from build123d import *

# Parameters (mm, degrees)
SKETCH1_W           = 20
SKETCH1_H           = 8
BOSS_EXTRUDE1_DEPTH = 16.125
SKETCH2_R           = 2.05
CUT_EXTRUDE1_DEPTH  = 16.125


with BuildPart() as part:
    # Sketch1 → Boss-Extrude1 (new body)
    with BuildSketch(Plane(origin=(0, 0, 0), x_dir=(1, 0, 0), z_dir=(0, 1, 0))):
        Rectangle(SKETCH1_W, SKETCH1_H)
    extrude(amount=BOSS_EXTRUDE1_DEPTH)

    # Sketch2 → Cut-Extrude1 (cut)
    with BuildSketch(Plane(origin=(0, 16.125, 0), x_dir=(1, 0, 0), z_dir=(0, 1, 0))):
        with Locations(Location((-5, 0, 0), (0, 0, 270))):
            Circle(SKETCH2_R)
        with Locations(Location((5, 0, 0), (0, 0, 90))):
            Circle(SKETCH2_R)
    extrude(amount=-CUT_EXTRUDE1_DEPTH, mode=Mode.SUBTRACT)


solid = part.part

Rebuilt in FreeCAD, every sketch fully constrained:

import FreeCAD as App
import Part
import Sketcher
from FreeCAD import Vector


def add_polygon(sketch, points):
    """Adds a closed chain of lines whose ends are joined by coincident constraints."""
    first, n = sketch.GeometryCount, len(points)
    for a, b in zip(points, points[1:] + points[:1]):
        sketch.addGeometry(Part.LineSegment(App.Vector(*a, 0), App.Vector(*b, 0)), False)
    for i in range(n):
        sketch.addConstraint(Sketcher.Constraint("Coincident", first + i, 2, first + (i + 1) % n, 1))

doc = App.newDocument("Part")
body = doc.addObject("PartDesign::Body", "Body")

# Sketch on XZ plane
sketch1 = doc.addObject("Sketcher::SketchObject", "Sketch")
body.addObject(sketch1)
sketch1.AttachmentSupport = (doc.XZ_Plane, [""])
sketch1.MapMode = "FlatFace"
add_polygon(sketch1, [(-10, -4), (-10, 4), (10, 4), (10, -4)])  # lines 0-3
sketch1.addConstraint(Sketcher.Constraint("Vertical", 0))
sketch1.addConstraint(Sketcher.Constraint("Horizontal", 1))
sketch1.addConstraint(Sketcher.Constraint("Vertical", 2))
sketch1.addConstraint(Sketcher.Constraint("Horizontal", 3))
sketch1.addConstraint(Sketcher.Constraint("Symmetric", 0, 2, 2, 2, -1, 1))
sketch1.addConstraint(Sketcher.Constraint("DistanceX", 1, 1, 1, 2, 20.0))
sketch1.addConstraint(Sketcher.Constraint("DistanceY", 0, 1, 0, 2, 8.0))
pad1 = doc.addObject("PartDesign::Pad", "Pad")
body.addObject(pad1)
pad1.Profile = sketch1
pad1.Length = 16.125
pad1.Reversed = True

# Sketch on XZ plane
sketch2 = doc.addObject("Sketcher::SketchObject", "Sketch001")
body.addObject(sketch2)
sketch2.AttachmentSupport = (doc.XZ_Plane, [""])
sketch2.MapMode = "FlatFace"
sketch2.AttachmentOffset = App.Placement(Vector(0, 0, -16.125), App.Rotation())
sketch2.addGeometry(Part.Circle(Vector(-5, 0, 0), Vector(0, 0, 1), 2), False)
sketch2.addGeometry(Part.Circle(Vector(5, 0, 0), Vector(0, 0, 1), 2), False)
sketch2.addConstraint(Sketcher.Constraint("Equal", 0, 1))
sketch2.addConstraint(Sketcher.Constraint("Symmetric", 0, 3, 1, 3, -1, 1))
sketch2.addConstraint(Sketcher.Constraint("PointOnObject", 0, 3, -1))
sketch2.addConstraint(Sketcher.Constraint("Diameter", 0, 4.1))
sketch2.addConstraint(Sketcher.Constraint("DistanceX", 0, 3, -1, 1, 5.0))
pocket1 = doc.addObject("PartDesign::Pocket", "Pocket")
body.addObject(pocket1)
pocket1.Profile = sketch2
pocket1.Length = 16.125
pocket1.Reversed = True

doc.recompute()
